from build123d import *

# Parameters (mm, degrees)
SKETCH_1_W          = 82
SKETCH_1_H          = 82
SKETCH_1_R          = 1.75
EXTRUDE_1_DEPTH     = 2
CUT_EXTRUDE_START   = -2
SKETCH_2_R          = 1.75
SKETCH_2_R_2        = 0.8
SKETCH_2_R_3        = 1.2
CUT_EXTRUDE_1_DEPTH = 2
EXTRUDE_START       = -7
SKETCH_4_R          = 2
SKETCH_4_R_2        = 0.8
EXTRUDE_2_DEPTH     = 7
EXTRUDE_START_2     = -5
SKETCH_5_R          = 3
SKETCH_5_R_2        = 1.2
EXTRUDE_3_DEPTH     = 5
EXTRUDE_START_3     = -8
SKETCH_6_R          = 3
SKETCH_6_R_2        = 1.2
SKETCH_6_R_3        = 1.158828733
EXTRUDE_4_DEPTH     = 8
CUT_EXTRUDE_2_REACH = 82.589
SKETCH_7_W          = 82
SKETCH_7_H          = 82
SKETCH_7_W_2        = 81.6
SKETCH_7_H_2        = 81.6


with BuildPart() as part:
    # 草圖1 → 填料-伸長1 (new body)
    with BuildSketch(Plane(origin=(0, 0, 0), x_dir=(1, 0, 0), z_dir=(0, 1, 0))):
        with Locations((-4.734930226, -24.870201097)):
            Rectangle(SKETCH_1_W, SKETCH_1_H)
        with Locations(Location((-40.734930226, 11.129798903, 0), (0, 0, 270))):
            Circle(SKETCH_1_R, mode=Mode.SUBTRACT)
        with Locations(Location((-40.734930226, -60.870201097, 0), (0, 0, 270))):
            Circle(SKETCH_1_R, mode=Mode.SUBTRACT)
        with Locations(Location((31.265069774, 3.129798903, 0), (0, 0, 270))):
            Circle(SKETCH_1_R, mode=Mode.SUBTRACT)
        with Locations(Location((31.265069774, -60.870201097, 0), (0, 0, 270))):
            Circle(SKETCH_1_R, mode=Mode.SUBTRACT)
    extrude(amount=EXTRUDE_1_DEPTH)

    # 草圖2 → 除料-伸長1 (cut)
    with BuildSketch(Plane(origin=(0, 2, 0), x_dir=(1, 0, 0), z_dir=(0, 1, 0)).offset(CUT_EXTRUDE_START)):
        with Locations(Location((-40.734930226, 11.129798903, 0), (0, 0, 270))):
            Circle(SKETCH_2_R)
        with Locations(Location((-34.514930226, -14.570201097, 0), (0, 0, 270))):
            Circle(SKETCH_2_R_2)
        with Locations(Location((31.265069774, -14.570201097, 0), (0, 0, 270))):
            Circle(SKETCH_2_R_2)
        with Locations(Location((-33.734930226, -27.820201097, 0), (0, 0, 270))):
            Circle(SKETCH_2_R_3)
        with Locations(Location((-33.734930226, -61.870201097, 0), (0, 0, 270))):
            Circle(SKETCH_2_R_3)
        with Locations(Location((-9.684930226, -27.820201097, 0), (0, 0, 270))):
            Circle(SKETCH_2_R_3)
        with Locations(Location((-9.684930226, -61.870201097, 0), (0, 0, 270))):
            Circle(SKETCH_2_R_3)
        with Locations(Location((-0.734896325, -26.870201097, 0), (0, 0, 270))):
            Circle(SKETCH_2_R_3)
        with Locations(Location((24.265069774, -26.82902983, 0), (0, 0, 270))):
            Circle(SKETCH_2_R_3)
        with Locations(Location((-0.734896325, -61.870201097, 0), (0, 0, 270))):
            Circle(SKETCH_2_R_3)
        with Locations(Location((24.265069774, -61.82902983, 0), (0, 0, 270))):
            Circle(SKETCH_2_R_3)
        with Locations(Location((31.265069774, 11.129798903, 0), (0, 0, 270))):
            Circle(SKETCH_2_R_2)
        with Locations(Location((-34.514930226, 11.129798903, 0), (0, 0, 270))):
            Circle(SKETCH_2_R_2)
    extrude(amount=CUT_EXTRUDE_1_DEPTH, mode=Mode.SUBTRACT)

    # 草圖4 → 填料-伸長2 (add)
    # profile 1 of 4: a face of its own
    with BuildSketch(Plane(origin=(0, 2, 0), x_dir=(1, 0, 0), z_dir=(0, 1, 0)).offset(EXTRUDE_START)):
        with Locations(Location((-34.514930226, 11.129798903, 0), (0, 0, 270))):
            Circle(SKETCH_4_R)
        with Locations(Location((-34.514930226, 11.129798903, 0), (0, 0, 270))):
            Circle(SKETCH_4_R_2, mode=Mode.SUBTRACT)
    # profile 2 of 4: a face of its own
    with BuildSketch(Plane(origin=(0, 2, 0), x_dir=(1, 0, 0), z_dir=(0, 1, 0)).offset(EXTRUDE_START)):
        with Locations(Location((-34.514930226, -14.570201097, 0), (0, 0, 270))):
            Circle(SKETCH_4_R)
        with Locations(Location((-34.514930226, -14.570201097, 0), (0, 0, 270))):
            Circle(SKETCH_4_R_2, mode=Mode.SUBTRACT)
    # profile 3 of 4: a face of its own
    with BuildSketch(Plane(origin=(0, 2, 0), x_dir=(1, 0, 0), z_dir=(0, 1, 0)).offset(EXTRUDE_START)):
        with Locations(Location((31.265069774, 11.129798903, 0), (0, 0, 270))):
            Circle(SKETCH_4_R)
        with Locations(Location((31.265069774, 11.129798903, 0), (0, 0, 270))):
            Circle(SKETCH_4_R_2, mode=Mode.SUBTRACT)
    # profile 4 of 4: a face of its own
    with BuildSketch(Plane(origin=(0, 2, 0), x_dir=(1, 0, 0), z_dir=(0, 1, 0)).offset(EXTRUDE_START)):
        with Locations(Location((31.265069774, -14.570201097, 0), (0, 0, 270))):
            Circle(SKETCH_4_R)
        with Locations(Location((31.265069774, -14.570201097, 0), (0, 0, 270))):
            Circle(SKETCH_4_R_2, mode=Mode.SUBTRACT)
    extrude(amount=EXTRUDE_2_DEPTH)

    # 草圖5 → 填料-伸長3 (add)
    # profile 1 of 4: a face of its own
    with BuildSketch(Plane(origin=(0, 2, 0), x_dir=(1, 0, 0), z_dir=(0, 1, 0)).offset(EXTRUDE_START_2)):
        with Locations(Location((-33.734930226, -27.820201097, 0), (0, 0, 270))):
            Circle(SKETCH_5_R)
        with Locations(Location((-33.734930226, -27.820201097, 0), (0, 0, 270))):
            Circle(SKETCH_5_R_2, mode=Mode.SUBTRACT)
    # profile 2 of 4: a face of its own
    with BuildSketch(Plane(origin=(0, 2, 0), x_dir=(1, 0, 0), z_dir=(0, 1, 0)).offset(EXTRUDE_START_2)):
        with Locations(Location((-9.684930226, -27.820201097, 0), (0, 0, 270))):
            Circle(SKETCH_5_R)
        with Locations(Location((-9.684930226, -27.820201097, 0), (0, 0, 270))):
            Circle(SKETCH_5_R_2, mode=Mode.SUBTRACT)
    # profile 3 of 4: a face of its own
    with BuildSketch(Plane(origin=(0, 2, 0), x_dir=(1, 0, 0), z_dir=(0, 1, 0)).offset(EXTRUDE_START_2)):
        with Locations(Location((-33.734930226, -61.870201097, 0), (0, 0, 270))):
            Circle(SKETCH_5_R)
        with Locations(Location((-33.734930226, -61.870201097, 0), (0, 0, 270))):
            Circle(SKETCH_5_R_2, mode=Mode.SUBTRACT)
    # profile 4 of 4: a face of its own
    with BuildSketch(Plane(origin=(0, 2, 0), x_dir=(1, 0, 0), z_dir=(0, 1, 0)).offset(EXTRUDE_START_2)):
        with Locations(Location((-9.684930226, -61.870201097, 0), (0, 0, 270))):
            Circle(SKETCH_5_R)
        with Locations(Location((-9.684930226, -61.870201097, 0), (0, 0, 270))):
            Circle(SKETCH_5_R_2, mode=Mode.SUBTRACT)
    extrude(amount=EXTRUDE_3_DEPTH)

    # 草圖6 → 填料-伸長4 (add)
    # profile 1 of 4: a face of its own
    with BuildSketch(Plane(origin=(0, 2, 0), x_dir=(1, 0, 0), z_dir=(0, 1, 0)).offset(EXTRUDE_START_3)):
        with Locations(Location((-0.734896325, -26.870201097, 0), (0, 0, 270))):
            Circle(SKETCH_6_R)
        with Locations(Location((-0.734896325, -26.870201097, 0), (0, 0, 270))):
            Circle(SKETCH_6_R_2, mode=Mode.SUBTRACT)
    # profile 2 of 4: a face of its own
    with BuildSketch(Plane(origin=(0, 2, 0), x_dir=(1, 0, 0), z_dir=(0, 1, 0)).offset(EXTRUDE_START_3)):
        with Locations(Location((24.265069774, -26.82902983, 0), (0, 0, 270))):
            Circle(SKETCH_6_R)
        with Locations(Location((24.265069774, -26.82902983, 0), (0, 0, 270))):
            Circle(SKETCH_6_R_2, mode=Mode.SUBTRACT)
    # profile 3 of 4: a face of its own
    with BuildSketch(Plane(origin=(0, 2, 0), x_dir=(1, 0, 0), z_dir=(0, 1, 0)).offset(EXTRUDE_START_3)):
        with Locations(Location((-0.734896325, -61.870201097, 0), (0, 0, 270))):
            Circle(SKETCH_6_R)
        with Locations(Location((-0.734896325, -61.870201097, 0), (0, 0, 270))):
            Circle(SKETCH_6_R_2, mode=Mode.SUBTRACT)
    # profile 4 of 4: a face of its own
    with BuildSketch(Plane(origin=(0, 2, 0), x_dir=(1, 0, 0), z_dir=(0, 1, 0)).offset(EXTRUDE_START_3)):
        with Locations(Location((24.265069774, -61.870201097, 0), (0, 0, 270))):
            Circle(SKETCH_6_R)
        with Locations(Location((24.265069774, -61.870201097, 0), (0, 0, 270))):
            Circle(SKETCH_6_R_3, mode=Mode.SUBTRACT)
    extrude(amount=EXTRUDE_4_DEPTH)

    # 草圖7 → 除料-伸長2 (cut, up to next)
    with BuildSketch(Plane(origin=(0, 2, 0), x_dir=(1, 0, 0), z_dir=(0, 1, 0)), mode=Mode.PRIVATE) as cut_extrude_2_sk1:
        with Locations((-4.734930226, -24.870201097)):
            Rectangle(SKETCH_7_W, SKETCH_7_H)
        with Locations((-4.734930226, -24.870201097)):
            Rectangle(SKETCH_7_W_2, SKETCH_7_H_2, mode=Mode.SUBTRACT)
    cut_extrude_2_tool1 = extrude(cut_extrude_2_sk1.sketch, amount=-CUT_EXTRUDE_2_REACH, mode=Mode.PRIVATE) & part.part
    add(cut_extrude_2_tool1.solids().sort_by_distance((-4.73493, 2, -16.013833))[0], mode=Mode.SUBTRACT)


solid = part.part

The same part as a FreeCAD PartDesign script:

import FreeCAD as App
import Part
import Sketcher
from FreeCAD import Vector
Q = App.Units.Quantity

doc = App.newDocument("Part")
params = doc.addObject("Spreadsheet::Sheet", "Params")
for row, (alias, value) in enumerate([
    ("sketch1_diameter", "3.5 mm"),
    ("sketch1_width", "82 mm"),
    ("pad1_length", "2 mm"),
    ("sketch2_diameter", "3.5 mm"),
    ("sketch2_diameter2", "1.6 mm"),
    ("sketch2_diameter3", "2.4 mm"),
    ("pocket1_length", "2 mm"),
    ("sketch3_diameter", "4 mm"),
    ("sketch3_diameter2", "1.6 mm"),
    ("pad2_length", "7 mm"),
    ("sketch4_diameter", "6 mm"),
    ("sketch4_diameter2", "2.4 mm"),
    ("pad3_length", "5 mm"),
    ("sketch5_diameter", "6 mm"),
    ("sketch5_diameter2", "2.4 mm"),
    ("pad4_length", "8 mm"),
    ("sketch6_width", "82 mm"),
    ("sketch6_width2", "81.6 mm"),
], start=1):
    params.set(f"A{row}", alias)
    params.set(f"B{row}", "=" + value)
    params.setAlias(f"B{row}", alias)

body = doc.addObject("PartDesign::Body", "Body")

# Sketch on XZ plane
sketch1 = body.newObject("Sketcher::SketchObject", "Sketch")
sketch1.AttachmentSupport = (doc.getObject("XZ_Plane"), [""])
sketch1.MapMode = "FlatFace"
sketch1.addGeometry([
    Part.LineSegment(Vector(-45.7, -16.1, 0), Vector(-45.7, 65.9, 0)),  # 0
    Part.LineSegment(Vector(-45.7, 65.9, 0), Vector(36.3, 65.9, 0)),  # 1
    Part.LineSegment(Vector(36.3, 65.9, 0), Vector(36.3, -16.1, 0)),  # 2
    Part.LineSegment(Vector(36.3, -16.1, 0), Vector(-45.7, -16.1, 0)),  # 3
    Part.Circle(Vector(-40.7, 60.9, 0), Vector(0, 0, 1), 1.8),  # 4
    Part.Circle(Vector(31.3, 60.9, 0), Vector(0, 0, 1), 1.8),  # 5
    Part.Circle(Vector(-40.7, -11.1, 0), Vector(0, 0, 1), 1.8),  # 6
    Part.Circle(Vector(31.3, -3.1, 0), Vector(0, 0, 1), 1.8),  # 7
], False)
sketch1.addConstraint([
    Sketcher.Constraint("Coincident", 0, 2, 1, 1),
    Sketcher.Constraint("Coincident", 1, 2, 2, 1),
    Sketcher.Constraint("Coincident", 2, 2, 3, 1),
    Sketcher.Constraint("Coincident", 3, 2, 0, 1),
    Sketcher.Constraint("Vertical", 0),
    Sketcher.Constraint("Horizontal", 1),
    Sketcher.Constraint("Vertical", 2),
    Sketcher.Constraint("Horizontal", 3),
    Sketcher.Constraint("Equal", 4, 5),
    Sketcher.Constraint("Equal", 5, 6),
    Sketcher.Constraint("Equal", 6, 7),
    Sketcher.Constraint("Horizontal", 4, 3, 5, 3),
    Sketcher.Constraint("Vertical", 4, 3, 6, 3),
    Sketcher.Constraint("Vertical", 5, 3, 7, 3),
    Sketcher.Constraint("Equal", 3, 0),
    Sketcher.Constraint("Diameter", 4, Q("3.5 mm")),
    Sketcher.Constraint("DistanceX", 1, 1, 1, 2, Q("82 mm")),
    Sketcher.Constraint("DistanceX", 4, 3, 5, 3, Q("72 mm")),
    Sketcher.Constraint("DistanceY", 6, 3, 4, 3, Q("72 mm")),
    Sketcher.Constraint("DistanceY", 7, 3, 5, 3, Q("64 mm")),
    Sketcher.Constraint("DistanceX", 0, 2, 4, 3, Q("5 mm")),
    Sketcher.Constraint("DistanceY", 4, 3, 0, 2, Q("5 mm")),
    Sketcher.Constraint("DistanceY", -1, 1, 4, 3, Q("60.870201 mm")),
    Sketcher.Constraint("DistanceX", 4, 3, -1, 1, Q("40.73493 mm")),
])
sketch1.setExpression("Constraints[15]", "Params.sketch1_diameter")
sketch1.setExpression("Constraints[16]", "Params.sketch1_width")
pad1 = body.newObject("PartDesign::Pad", "Pad")
pad1.Profile = sketch1
pad1.setExpression("Length", "Params.pad1_length")
pad1.Reversed = True

# Sketch on XZ plane
sketch2 = body.newObject("Sketcher::SketchObject", "Sketch001")
sketch2.AttachmentSupport = (doc.getObject("XZ_Plane"), [""])
sketch2.MapMode = "FlatFace"
sketch2.addGeometry([
    Part.Circle(Vector(-40.7, -11.1, 0), Vector(0, 0, 1), 1.8),  # 0
    Part.Circle(Vector(-34.5, 14.6, 0), Vector(0, 0, 1), 0.8),  # 1
    Part.Circle(Vector(31.3, 14.6, 0), Vector(0, 0, 1), 0.8),  # 2
    Part.Circle(Vector(-33.7, 27.8, 0), Vector(0, 0, 1), 1.2),  # 3
    Part.Circle(Vector(-33.7, 61.9, 0), Vector(0, 0, 1), 1.2),  # 4
    Part.Circle(Vector(-9.7, 27.8, 0), Vector(0, 0, 1), 1.2),  # 5
    Part.Circle(Vector(-9.7, 61.9, 0), Vector(0, 0, 1), 1.2),  # 6
    Part.Circle(Vector(-0.7, 26.9, 0), Vector(0, 0, 1), 1.2),  # 7
    Part.Circle(Vector(24.3, 26.8, 0), Vector(0, 0, 1), 1.2),  # 8
    Part.Circle(Vector(-0.7, 61.9, 0), Vector(0, 0, 1), 1.2),  # 9
    Part.Circle(Vector(24.3, 61.8, 0), Vector(0, 0, 1), 1.2),  # 10
    Part.Circle(Vector(31.3, -11.1, 0), Vector(0, 0, 1), 0.8),  # 11
    Part.Circle(Vector(-34.5, -11.1, 0), Vector(0, 0, 1), 0.8),  # 12
], False)
sketch2.addConstraint([
    Sketcher.Constraint("Equal", 1, 2),
    Sketcher.Constraint("Equal", 3, 4),
    Sketcher.Constraint("Equal", 4, 5),
    Sketcher.Constraint("Equal", 5, 6),
    Sketcher.Constraint("Equal", 6, 7),
    Sketcher.Constraint("Equal", 7, 8),
    Sketcher.Constraint("Equal", 8, 9),
    Sketcher.Constraint("Equal", 9, 10),
    Sketcher.Constraint("Equal", 2, 11),
    Sketcher.Constraint("Equal", 11, 12),
    Sketcher.Constraint("Horizontal", 1, 3, 2, 3),
    Sketcher.Constraint("Horizontal", 3, 3, 5, 3),
    Sketcher.Constraint("Horizontal", 4, 3, 6, 3),
    Sketcher.Constraint("Horizontal", 6, 3, 9, 3),
    Sketcher.Constraint("Horizontal", 0, 3, 11, 3),
    Sketcher.Constraint("Horizontal", 11, 3, 12, 3),
    Sketcher.Constraint("Vertical", 3, 3, 4, 3),
    Sketcher.Constraint("Vertical", 5, 3, 6, 3),
    Sketcher.Constraint("Vertical", 7, 3, 9, 3),
    Sketcher.Constraint("Vertical", 8, 3, 10, 3),
    Sketcher.Constraint("Vertical", 2, 3, 11, 3),
    Sketcher.Constraint("Vertical", 1, 3, 12, 3),
    Sketcher.Constraint("Diameter", 0, Q("3.5 mm")),
    Sketcher.Constraint("Diameter", 1, Q("1.6 mm")),
    Sketcher.Constraint("Diameter", 3, Q("2.4 mm")),
    Sketcher.Constraint("DistanceX", 0, 3, 2, 3, Q("72 mm")),
    Sketcher.Constraint("DistanceX", 0, 3, 3, 3, Q("7 mm")),
    Sketcher.Constraint("DistanceY", 0, 3, 4, 3, Q("73 mm")),
    Sketcher.Constraint("DistanceY", 7, 3, 6, 3, Q("35 mm")),
    Sketcher.Constraint("DistanceX", 8, 3, 2, 3, Q("7 mm")),
    Sketcher.Constraint("DistanceY", 8, 3, 10, 3, Q("35 mm")),
    Sketcher.Constraint("DistanceY", 0, 3, 1, 3, Q("25.7 mm")),
    Sketcher.Constraint("DistanceX", 0, 3, 1, 3, Q("6.22 mm")),
    Sketcher.Constraint("DistanceY", 1, 3, 3, 3, Q("13.25 mm")),
    Sketcher.Constraint("DistanceX", 3, 3, 5, 3, Q("24.05 mm")),
    Sketcher.Constraint("DistanceY", 0, 3, -1, 1, Q("11.129799 mm")),
    Sketcher.Constraint("DistanceX", 0, 3, -1, 1, Q("40.73493 mm")),
    Sketcher.Constraint("DistanceY", -1, 1, 8, 3, Q("26.82903 mm")),
    Sketcher.Constraint("DistanceX", 7, 3, -1, 1, Q("0.734896 mm")),
])
sketch2.setExpression("Constraints[22]", "Params.sketch2_diameter")
sketch2.setExpression("Constraints[23]", "Params.sketch2_diameter2")
sketch2.setExpression("Constraints[24]", "Params.sketch2_diameter3")
pocket1 = body.newObject("PartDesign::Pocket", "Pocket")
pocket1.Profile = sketch2
pocket1.setExpression("Length", "Params.pocket1_length")

# Sketch on XZ plane
sketch3 = body.newObject("Sketcher::SketchObject", "Sketch002")
sketch3.AttachmentSupport = (doc.getObject("XZ_Plane"), [""])
sketch3.MapMode = "FlatFace"
sketch3.AttachmentOffset = App.Placement(Vector(0, 0, 5), App.Rotation())
sketch3.addGeometry([
    Part.Circle(Vector(-34.5, -11.1, 0), Vector(0, 0, 1), 2),  # 0
    Part.Circle(Vector(-34.5, -11.1, 0), Vector(0, 0, 1), 0.8),  # 1
    Part.Circle(Vector(-34.5, 14.6, 0), Vector(0, 0, 1), 2),  # 2
    Part.Circle(Vector(-34.5, 14.6, 0), Vector(0, 0, 1), 0.8),  # 3
    Part.Circle(Vector(31.3, -11.1, 0), Vector(0, 0, 1), 2),  # 4
    Part.Circle(Vector(31.3, -11.1, 0), Vector(0, 0, 1), 0.8),  # 5
    Part.Circle(Vector(31.3, 14.6, 0), Vector(0, 0, 1), 2),  # 6
    Part.Circle(Vector(31.3, 14.6, 0), Vector(0, 0, 1), 0.8),  # 7
], False)
sketch3.addConstraint([
    Sketcher.Constraint("Coincident", 1, 3, 0, 3),
    Sketcher.Constraint("Coincident", 3, 3, 2, 3),
    Sketcher.Constraint("Coincident", 5, 3, 4, 3),
    Sketcher.Constraint("Coincident", 7, 3, 6, 3),
    Sketcher.Constraint("Equal", 0, 2),
    Sketcher.Constraint("Equal", 1, 3),
    Sketcher.Constraint("Equal", 2, 4),
    Sketcher.Constraint("Equal", 3, 5),
    Sketcher.Constraint("Equal", 4, 6),
    Sketcher.Constraint("Equal", 5, 7),
    Sketcher.Constraint("Horizontal", 1, 3, 4, 3),
    Sketcher.Constraint("Horizontal", 3, 3, 6, 3),
    Sketcher.Constraint("Vertical", 1, 3, 2, 3),
    Sketcher.Constraint("Vertical", 5, 3, 6, 3),
    Sketcher.Constraint("Diameter", 0, Q("4 mm")),
    Sketcher.Constraint("Diameter", 1, Q("1.6 mm")),
    Sketcher.Constraint("DistanceY", 0, 3, 2, 3, Q("25.7 mm")),
    Sketcher.Constraint("DistanceX", 0, 3, 4, 3, Q("65.78 mm")),
    Sketcher.Constraint("DistanceY", 0, 3, -1, 1, Q("11.129799 mm")),
    Sketcher.Constraint("DistanceX", 0, 3, -1, 1, Q("34.51493 mm")),
])
sketch3.setExpression("Constraints[14]", "Params.sketch3_diameter")
sketch3.setExpression("Constraints[15]", "Params.sketch3_diameter2")
pad2 = body.newObject("PartDesign::Pad", "Pad001")
pad2.Profile = sketch3
pad2.setExpression("Length", "Params.pad2_length")
pad2.Reversed = True

# Sketch on XZ plane
sketch4 = body.newObject("Sketcher::SketchObject", "Sketch003")
sketch4.AttachmentSupport = (doc.getObject("XZ_Plane"), [""])
sketch4.MapMode = "FlatFace"
sketch4.AttachmentOffset = App.Placement(Vector(0, 0, 3), App.Rotation())
sketch4.addGeometry([
    Part.Circle(Vector(-33.7, 27.8, 0), Vector(0, 0, 1), 3),  # 0
    Part.Circle(Vector(-33.7, 27.8, 0), Vector(0, 0, 1), 1.2),  # 1
    Part.Circle(Vector(-9.7, 27.8, 0), Vector(0, 0, 1), 3),  # 2
    Part.Circle(Vector(-9.7, 27.8, 0), Vector(0, 0, 1), 1.2),  # 3
    Part.Circle(Vector(-33.7, 61.9, 0), Vector(0, 0, 1), 3),  # 4
    Part.Circle(Vector(-33.7, 61.9, 0), Vector(0, 0, 1), 1.2),  # 5
    Part.Circle(Vector(-9.7, 61.9, 0), Vector(0, 0, 1), 3),  # 6
    Part.Circle(Vector(-9.7, 61.9, 0), Vector(0, 0, 1), 1.2),  # 7
], False)
sketch4.addConstraint([
    Sketcher.Constraint("Coincident", 1, 3, 0, 3),
    Sketcher.Constraint("Coincident", 3, 3, 2, 3),
    Sketcher.Constraint("Coincident", 5, 3, 4, 3),
    Sketcher.Constraint("Coincident", 7, 3, 6, 3),
    Sketcher.Constraint("Equal", 0, 2),
    Sketcher.Constraint("Equal", 1, 3),
    Sketcher.Constraint("Equal", 2, 4),
    Sketcher.Constraint("Equal", 3, 5),
    Sketcher.Constraint("Equal", 4, 6),
    Sketcher.Constraint("Equal", 5, 7),
    Sketcher.Constraint("Horizontal", 1, 3, 2, 3),
    Sketcher.Constraint("Horizontal", 5, 3, 6, 3),
    Sketcher.Constraint("Vertical", 1, 3, 4, 3),
    Sketcher.Constraint("Vertical", 3, 3, 6, 3),
    Sketcher.Constraint("Diameter", 0, Q("6 mm")),
    Sketcher.Constraint("Diameter", 1, Q("2.4 mm")),
    Sketcher.Constraint("DistanceX", 0, 3, 2, 3, Q("24.05 mm")),
    Sketcher.Constraint("DistanceY", 0, 3, 4, 3, Q("34.05 mm")),
    Sketcher.Constraint("DistanceY", -1, 1, 0, 3, Q("27.820201 mm")),
    Sketcher.Constraint("DistanceX", 0, 3, -1, 1, Q("33.73493 mm")),
])
sketch4.setExpression("Constraints[14]", "Params.sketch4_diameter")
sketch4.setExpression("Constraints[15]", "Params.sketch4_diameter2")
pad3 = body.newObject("PartDesign::Pad", "Pad002")
pad3.Profile = sketch4
pad3.setExpression("Length", "Params.pad3_length")
pad3.Reversed = True

# Sketch on XZ plane
sketch5 = body.newObject("Sketcher::SketchObject", "Sketch004")
sketch5.AttachmentSupport = (doc.getObject("XZ_Plane"), [""])
sketch5.MapMode = "FlatFace"
sketch5.AttachmentOffset = App.Placement(Vector(0, 0, 6), App.Rotation())
sketch5.addGeometry([
    Part.Circle(Vector(-0.7, 26.9, 0), Vector(0, 0, 1), 3),  # 0
    Part.Circle(Vector(-0.7, 26.9, 0), Vector(0, 0, 1), 1.2),  # 1
    Part.Circle(Vector(24.3, 26.8, 0), Vector(0, 0, 1), 3),  # 2
    Part.Circle(Vector(24.3, 26.8, 0), Vector(0, 0, 1), 1.2),  # 3
    Part.Circle(Vector(-0.7, 61.9, 0), Vector(0, 0, 1), 3),  # 4
    Part.Circle(Vector(-0.7, 61.9, 0), Vector(0, 0, 1), 1.2),  # 5
    Part.Circle(Vector(24.3, 61.9, 0), Vector(0, 0, 1), 3),  # 6
    Part.Circle(Vector(24.3, 61.9, 0), Vector(0, 0, 1), 1.2),  # 7
], False)
sketch5.addConstraint([
    Sketcher.Constraint("Coincident", 1, 3, 0, 3),
    Sketcher.Constraint("Coincident", 3, 3, 2, 3),
    Sketcher.Constraint("Coincident", 5, 3, 4, 3),
    Sketcher.Constraint("Coincident", 7, 3, 6, 3),
    Sketcher.Constraint("Equal", 0, 2),
    Sketcher.Constraint("Equal", 1, 3),
    Sketcher.Constraint("Equal", 2, 4),
    Sketcher.Constraint("Equal", 3, 5),
    Sketcher.Constraint("Equal", 4, 6),
    Sketcher.Constraint("Horizontal", 5, 3, 6, 3),
    Sketcher.Constraint("Vertical", 1, 3, 4, 3),
    Sketcher.Constraint("Vertical", 3, 3, 6, 3),
    Sketcher.Constraint("Diameter", 0, Q("6 mm")),
    Sketcher.Constraint("Diameter", 1, Q("2.4 mm")),
    Sketcher.Constraint("DistanceY", 0, 3, 4, 3, Q("35 mm")),
    Sketcher.Constraint("Diameter", 7, Q("2.317657 mm")),
    Sketcher.Constraint("DistanceY", -1, 1, 0, 3, Q("26.870201 mm")),
    Sketcher.Constraint("DistanceX", -1, 1, 2, 3, Q("24.26507 mm")),
    Sketcher.Constraint("DistanceY", -1, 1, 2, 3, Q("26.82903 mm")),
    Sketcher.Constraint("DistanceX", 0, 3, -1, 1, Q("0.734896 mm")),
])
sketch5.setExpression("Constraints[12]", "Params.sketch5_diameter")
sketch5.setExpression("Constraints[13]", "Params.sketch5_diameter2")
pad4 = body.newObject("PartDesign::Pad", "Pad003")
pad4.Profile = sketch5
pad4.setExpression("Length", "Params.pad4_length")
pad4.Reversed = True

# Sketch on XZ plane
sketch6 = body.newObject("Sketcher::SketchObject", "Sketch005")
sketch6.AttachmentSupport = (doc.getObject("XZ_Plane"), [""])
sketch6.MapMode = "FlatFace"
sketch6.AttachmentOffset = App.Placement(Vector(0, 0, -2), App.Rotation())
sketch6.addGeometry([
    Part.LineSegment(Vector(-46, -16, 0), Vector(-46, 66, 0)),  # 0
    Part.LineSegment(Vector(-46, 66, 0), Vector(36, 66, 0)),  # 1
    Part.LineSegment(Vector(36, 66, 0), Vector(36, -16, 0)),  # 2
    Part.LineSegment(Vector(36, -16, 0), Vector(-46, -16, 0)),  # 3
    Part.LineSegment(Vector(36, 66, 0), Vector(-46, 66, 0)),  # 4
    Part.LineSegment(Vector(-46, 66, 0), Vector(-46, -16, 0)),  # 5
    Part.LineSegment(Vector(-46, -16, 0), Vector(36, -16, 0)),  # 6
    Part.LineSegment(Vector(36, -16, 0), Vector(36, 66, 0)),  # 7
], False)
sketch6.addConstraint([
    Sketcher.Constraint("Coincident", 0, 2, 1, 1),
    Sketcher.Constraint("Coincident", 1, 2, 2, 1),
    Sketcher.Constraint("Coincident", 2, 2, 3, 1),
    Sketcher.Constraint("Coincident", 3, 2, 0, 1),
    Sketcher.Constraint("Coincident", 4, 2, 5, 1),
    Sketcher.Constraint("Coincident", 5, 2, 6, 1),
    Sketcher.Constraint("Coincident", 6, 2, 7, 1),
    Sketcher.Constraint("Coincident", 7, 2, 4, 1),
    Sketcher.Constraint("Vertical", 0),
    Sketcher.Constraint("Horizontal", 1),
    Sketcher.Constraint("Vertical", 2),
    Sketcher.Constraint("Horizontal", 3),
    Sketcher.Constraint("Horizontal", 4),
    Sketcher.Constraint("Vertical", 5),
    Sketcher.Constraint("Horizontal", 6),
    Sketcher.Constraint("Vertical", 7),
    Sketcher.Constraint("Equal", 3, 0),
    Sketcher.Constraint("Equal", 6, 5),
    Sketcher.Constraint("DistanceX", 1, 1, 1, 2, Q("82 mm")),
    Sketcher.Constraint("DistanceX", 4, 2, 4, 1, Q("81.6 mm")),
    Sketcher.Constraint("DistanceX", 0, 2, 4, 2, Q("0.2 mm")),
    Sketcher.Constraint("DistanceY", 4, 2, 0, 2, Q("0.2 mm")),
    Sketcher.Constraint("DistanceY", -1, 1, 0, 2, Q("65.870201 mm")),
    Sketcher.Constraint("DistanceX", 0, 2, -1, 1, Q("45.73493 mm")),
])
sketch6.setExpression("Constraints[18]", "Params.sketch6_width")
sketch6.setExpression("Constraints[19]", "Params.sketch6_width2")
pocket2 = body.newObject("PartDesign::Pocket", "Pocket001")
pocket2.Profile = sketch6
pocket2.Type = "UpToFirst"
pocket2.Reversed = True

doc.recompute()
